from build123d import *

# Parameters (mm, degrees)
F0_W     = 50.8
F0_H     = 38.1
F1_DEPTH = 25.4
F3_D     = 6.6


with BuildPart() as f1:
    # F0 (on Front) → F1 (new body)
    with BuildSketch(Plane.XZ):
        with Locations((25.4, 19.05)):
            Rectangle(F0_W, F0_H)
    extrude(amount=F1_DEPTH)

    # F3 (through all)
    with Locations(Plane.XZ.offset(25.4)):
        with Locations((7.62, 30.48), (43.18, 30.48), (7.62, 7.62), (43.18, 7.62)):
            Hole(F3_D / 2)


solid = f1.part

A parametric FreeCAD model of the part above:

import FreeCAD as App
import Part
import Sketcher

V = App.Vector
Q = App.Units.Quantity

doc = App.newDocument("Part")
body = doc.addObject("PartDesign::Body", "Body")

# Sketch on XZ plane
sketch1 = body.newObject("Sketcher::SketchObject", "Sketch")
sketch1.AttachmentSupport = (doc.getObject("XZ_Plane"), [""])
sketch1.MapMode = "FlatFace"
sketch1.addGeometry(Part.LineSegment(V(0, 38, 0), V(0, 0, 0)), False)
sketch1.addGeometry(Part.LineSegment(V(0, 0, 0), V(51, 0, 0)), False)
sketch1.addGeometry(Part.LineSegment(V(51, 0, 0), V(51, 38, 0)), False)
sketch1.addGeometry(Part.LineSegment(V(51, 38, 0), V(0, 38, 0)), False)
sketch1.addConstraint(Sketcher.Constraint("Coincident", 0, 2, 1, 1))
sketch1.addConstraint(Sketcher.Constraint("Coincident", 1, 2, 2, 1))
sketch1.addConstraint(Sketcher.Constraint("Coincident", 2, 2, 3, 1))
sketch1.addConstraint(Sketcher.Constraint("Coincident", 3, 2, 0, 1))
sketch1.addConstraint(Sketcher.Constraint("Vertical", 0))
sketch1.addConstraint(Sketcher.Constraint("Horizontal", 1))
sketch1.addConstraint(Sketcher.Constraint("Vertical", 2))
sketch1.addConstraint(Sketcher.Constraint("Horizontal", 3))
sketch1.addConstraint(Sketcher.Constraint("Coincident", 0, 2, -1, 1))
sketch1.addConstraint(Sketcher.Constraint("DistanceX", 1, 1, 1, 2, Q("2 in")))
sketch1.addConstraint(Sketcher.Constraint("DistanceY", 0, 2, 0, 1, Q("1.5 in")))
pad1 = body.newObject("PartDesign::Pad", "Pad")
pad1.Profile = sketch1
pad1.Length = Q("1 in")

# Sketch on XZ plane
sketch2 = body.newObject("Sketcher::SketchObject", "Sketch001")
sketch2.AttachmentSupport = (doc.getObject("XZ_Plane"), [""])
sketch2.MapMode = "FlatFace"
sketch2.AttachmentOffset = App.Placement(V(0, 0, 1 * 25.4), App.Rotation())
sketch2.addGeometry(Part.Circle(V(7.6, 30.5, 0), V(0, 0, 1), 3.3), False)
sketch2.addGeometry(Part.Circle(V(43.2, 30.5, 0), V(0, 0, 1), 3.3), False)
sketch2.addGeometry(Part.Circle(V(7.6, 7.6, 0), V(0, 0, 1), 3.3), False)
sketch2.addGeometry(Part.Circle(V(43.2, 7.6, 0), V(0, 0, 1), 3.3), False)
sketch2.addConstraint(Sketcher.Constraint("Equal", 0, 1))
sketch2.addConstraint(Sketcher.Constraint("Equal", 1, 2))
sketch2.addConstraint(Sketcher.Constraint("Equal", 2, 3))
sketch2.addConstraint(Sketcher.Constraint("Horizontal", 0, 3, 1, 3))
sketch2.addConstraint(Sketcher.Constraint("Horizontal", 2, 3, 3, 3))
sketch2.addConstraint(Sketcher.Constraint("Vertical", 0, 3, 2, 3))
sketch2.addConstraint(Sketcher.Constraint("Vertical", 1, 3, 3, 3))
sketch2.addConstraint(Sketcher.Constraint("DistanceX", -1, 1, 0, 3, Q("0.3 in")))
sketch2.addConstraint(Sketcher.Constraint("DistanceY", -1, 1, 0, 3, Q("1.2 in")))
sketch2.addConstraint(Sketcher.Constraint("DistanceX", -1, 1, 1, 3, Q("1.7 in")))
sketch2.addConstraint(Sketcher.Constraint("DistanceY", -1, 1, 2, 3, Q("0.3 in")))
sketch2.addConstraint(Sketcher.Constraint("Diameter", 0, 6.6))
doc.recompute()
hole = body.newObject("PartDesign::Hole", "Hole")
hole.Profile = sketch2
hole.ThreadType = "None"
hole.Diameter = 6.6
hole.DepthType = "ThroughAll"

doc.recompute()
